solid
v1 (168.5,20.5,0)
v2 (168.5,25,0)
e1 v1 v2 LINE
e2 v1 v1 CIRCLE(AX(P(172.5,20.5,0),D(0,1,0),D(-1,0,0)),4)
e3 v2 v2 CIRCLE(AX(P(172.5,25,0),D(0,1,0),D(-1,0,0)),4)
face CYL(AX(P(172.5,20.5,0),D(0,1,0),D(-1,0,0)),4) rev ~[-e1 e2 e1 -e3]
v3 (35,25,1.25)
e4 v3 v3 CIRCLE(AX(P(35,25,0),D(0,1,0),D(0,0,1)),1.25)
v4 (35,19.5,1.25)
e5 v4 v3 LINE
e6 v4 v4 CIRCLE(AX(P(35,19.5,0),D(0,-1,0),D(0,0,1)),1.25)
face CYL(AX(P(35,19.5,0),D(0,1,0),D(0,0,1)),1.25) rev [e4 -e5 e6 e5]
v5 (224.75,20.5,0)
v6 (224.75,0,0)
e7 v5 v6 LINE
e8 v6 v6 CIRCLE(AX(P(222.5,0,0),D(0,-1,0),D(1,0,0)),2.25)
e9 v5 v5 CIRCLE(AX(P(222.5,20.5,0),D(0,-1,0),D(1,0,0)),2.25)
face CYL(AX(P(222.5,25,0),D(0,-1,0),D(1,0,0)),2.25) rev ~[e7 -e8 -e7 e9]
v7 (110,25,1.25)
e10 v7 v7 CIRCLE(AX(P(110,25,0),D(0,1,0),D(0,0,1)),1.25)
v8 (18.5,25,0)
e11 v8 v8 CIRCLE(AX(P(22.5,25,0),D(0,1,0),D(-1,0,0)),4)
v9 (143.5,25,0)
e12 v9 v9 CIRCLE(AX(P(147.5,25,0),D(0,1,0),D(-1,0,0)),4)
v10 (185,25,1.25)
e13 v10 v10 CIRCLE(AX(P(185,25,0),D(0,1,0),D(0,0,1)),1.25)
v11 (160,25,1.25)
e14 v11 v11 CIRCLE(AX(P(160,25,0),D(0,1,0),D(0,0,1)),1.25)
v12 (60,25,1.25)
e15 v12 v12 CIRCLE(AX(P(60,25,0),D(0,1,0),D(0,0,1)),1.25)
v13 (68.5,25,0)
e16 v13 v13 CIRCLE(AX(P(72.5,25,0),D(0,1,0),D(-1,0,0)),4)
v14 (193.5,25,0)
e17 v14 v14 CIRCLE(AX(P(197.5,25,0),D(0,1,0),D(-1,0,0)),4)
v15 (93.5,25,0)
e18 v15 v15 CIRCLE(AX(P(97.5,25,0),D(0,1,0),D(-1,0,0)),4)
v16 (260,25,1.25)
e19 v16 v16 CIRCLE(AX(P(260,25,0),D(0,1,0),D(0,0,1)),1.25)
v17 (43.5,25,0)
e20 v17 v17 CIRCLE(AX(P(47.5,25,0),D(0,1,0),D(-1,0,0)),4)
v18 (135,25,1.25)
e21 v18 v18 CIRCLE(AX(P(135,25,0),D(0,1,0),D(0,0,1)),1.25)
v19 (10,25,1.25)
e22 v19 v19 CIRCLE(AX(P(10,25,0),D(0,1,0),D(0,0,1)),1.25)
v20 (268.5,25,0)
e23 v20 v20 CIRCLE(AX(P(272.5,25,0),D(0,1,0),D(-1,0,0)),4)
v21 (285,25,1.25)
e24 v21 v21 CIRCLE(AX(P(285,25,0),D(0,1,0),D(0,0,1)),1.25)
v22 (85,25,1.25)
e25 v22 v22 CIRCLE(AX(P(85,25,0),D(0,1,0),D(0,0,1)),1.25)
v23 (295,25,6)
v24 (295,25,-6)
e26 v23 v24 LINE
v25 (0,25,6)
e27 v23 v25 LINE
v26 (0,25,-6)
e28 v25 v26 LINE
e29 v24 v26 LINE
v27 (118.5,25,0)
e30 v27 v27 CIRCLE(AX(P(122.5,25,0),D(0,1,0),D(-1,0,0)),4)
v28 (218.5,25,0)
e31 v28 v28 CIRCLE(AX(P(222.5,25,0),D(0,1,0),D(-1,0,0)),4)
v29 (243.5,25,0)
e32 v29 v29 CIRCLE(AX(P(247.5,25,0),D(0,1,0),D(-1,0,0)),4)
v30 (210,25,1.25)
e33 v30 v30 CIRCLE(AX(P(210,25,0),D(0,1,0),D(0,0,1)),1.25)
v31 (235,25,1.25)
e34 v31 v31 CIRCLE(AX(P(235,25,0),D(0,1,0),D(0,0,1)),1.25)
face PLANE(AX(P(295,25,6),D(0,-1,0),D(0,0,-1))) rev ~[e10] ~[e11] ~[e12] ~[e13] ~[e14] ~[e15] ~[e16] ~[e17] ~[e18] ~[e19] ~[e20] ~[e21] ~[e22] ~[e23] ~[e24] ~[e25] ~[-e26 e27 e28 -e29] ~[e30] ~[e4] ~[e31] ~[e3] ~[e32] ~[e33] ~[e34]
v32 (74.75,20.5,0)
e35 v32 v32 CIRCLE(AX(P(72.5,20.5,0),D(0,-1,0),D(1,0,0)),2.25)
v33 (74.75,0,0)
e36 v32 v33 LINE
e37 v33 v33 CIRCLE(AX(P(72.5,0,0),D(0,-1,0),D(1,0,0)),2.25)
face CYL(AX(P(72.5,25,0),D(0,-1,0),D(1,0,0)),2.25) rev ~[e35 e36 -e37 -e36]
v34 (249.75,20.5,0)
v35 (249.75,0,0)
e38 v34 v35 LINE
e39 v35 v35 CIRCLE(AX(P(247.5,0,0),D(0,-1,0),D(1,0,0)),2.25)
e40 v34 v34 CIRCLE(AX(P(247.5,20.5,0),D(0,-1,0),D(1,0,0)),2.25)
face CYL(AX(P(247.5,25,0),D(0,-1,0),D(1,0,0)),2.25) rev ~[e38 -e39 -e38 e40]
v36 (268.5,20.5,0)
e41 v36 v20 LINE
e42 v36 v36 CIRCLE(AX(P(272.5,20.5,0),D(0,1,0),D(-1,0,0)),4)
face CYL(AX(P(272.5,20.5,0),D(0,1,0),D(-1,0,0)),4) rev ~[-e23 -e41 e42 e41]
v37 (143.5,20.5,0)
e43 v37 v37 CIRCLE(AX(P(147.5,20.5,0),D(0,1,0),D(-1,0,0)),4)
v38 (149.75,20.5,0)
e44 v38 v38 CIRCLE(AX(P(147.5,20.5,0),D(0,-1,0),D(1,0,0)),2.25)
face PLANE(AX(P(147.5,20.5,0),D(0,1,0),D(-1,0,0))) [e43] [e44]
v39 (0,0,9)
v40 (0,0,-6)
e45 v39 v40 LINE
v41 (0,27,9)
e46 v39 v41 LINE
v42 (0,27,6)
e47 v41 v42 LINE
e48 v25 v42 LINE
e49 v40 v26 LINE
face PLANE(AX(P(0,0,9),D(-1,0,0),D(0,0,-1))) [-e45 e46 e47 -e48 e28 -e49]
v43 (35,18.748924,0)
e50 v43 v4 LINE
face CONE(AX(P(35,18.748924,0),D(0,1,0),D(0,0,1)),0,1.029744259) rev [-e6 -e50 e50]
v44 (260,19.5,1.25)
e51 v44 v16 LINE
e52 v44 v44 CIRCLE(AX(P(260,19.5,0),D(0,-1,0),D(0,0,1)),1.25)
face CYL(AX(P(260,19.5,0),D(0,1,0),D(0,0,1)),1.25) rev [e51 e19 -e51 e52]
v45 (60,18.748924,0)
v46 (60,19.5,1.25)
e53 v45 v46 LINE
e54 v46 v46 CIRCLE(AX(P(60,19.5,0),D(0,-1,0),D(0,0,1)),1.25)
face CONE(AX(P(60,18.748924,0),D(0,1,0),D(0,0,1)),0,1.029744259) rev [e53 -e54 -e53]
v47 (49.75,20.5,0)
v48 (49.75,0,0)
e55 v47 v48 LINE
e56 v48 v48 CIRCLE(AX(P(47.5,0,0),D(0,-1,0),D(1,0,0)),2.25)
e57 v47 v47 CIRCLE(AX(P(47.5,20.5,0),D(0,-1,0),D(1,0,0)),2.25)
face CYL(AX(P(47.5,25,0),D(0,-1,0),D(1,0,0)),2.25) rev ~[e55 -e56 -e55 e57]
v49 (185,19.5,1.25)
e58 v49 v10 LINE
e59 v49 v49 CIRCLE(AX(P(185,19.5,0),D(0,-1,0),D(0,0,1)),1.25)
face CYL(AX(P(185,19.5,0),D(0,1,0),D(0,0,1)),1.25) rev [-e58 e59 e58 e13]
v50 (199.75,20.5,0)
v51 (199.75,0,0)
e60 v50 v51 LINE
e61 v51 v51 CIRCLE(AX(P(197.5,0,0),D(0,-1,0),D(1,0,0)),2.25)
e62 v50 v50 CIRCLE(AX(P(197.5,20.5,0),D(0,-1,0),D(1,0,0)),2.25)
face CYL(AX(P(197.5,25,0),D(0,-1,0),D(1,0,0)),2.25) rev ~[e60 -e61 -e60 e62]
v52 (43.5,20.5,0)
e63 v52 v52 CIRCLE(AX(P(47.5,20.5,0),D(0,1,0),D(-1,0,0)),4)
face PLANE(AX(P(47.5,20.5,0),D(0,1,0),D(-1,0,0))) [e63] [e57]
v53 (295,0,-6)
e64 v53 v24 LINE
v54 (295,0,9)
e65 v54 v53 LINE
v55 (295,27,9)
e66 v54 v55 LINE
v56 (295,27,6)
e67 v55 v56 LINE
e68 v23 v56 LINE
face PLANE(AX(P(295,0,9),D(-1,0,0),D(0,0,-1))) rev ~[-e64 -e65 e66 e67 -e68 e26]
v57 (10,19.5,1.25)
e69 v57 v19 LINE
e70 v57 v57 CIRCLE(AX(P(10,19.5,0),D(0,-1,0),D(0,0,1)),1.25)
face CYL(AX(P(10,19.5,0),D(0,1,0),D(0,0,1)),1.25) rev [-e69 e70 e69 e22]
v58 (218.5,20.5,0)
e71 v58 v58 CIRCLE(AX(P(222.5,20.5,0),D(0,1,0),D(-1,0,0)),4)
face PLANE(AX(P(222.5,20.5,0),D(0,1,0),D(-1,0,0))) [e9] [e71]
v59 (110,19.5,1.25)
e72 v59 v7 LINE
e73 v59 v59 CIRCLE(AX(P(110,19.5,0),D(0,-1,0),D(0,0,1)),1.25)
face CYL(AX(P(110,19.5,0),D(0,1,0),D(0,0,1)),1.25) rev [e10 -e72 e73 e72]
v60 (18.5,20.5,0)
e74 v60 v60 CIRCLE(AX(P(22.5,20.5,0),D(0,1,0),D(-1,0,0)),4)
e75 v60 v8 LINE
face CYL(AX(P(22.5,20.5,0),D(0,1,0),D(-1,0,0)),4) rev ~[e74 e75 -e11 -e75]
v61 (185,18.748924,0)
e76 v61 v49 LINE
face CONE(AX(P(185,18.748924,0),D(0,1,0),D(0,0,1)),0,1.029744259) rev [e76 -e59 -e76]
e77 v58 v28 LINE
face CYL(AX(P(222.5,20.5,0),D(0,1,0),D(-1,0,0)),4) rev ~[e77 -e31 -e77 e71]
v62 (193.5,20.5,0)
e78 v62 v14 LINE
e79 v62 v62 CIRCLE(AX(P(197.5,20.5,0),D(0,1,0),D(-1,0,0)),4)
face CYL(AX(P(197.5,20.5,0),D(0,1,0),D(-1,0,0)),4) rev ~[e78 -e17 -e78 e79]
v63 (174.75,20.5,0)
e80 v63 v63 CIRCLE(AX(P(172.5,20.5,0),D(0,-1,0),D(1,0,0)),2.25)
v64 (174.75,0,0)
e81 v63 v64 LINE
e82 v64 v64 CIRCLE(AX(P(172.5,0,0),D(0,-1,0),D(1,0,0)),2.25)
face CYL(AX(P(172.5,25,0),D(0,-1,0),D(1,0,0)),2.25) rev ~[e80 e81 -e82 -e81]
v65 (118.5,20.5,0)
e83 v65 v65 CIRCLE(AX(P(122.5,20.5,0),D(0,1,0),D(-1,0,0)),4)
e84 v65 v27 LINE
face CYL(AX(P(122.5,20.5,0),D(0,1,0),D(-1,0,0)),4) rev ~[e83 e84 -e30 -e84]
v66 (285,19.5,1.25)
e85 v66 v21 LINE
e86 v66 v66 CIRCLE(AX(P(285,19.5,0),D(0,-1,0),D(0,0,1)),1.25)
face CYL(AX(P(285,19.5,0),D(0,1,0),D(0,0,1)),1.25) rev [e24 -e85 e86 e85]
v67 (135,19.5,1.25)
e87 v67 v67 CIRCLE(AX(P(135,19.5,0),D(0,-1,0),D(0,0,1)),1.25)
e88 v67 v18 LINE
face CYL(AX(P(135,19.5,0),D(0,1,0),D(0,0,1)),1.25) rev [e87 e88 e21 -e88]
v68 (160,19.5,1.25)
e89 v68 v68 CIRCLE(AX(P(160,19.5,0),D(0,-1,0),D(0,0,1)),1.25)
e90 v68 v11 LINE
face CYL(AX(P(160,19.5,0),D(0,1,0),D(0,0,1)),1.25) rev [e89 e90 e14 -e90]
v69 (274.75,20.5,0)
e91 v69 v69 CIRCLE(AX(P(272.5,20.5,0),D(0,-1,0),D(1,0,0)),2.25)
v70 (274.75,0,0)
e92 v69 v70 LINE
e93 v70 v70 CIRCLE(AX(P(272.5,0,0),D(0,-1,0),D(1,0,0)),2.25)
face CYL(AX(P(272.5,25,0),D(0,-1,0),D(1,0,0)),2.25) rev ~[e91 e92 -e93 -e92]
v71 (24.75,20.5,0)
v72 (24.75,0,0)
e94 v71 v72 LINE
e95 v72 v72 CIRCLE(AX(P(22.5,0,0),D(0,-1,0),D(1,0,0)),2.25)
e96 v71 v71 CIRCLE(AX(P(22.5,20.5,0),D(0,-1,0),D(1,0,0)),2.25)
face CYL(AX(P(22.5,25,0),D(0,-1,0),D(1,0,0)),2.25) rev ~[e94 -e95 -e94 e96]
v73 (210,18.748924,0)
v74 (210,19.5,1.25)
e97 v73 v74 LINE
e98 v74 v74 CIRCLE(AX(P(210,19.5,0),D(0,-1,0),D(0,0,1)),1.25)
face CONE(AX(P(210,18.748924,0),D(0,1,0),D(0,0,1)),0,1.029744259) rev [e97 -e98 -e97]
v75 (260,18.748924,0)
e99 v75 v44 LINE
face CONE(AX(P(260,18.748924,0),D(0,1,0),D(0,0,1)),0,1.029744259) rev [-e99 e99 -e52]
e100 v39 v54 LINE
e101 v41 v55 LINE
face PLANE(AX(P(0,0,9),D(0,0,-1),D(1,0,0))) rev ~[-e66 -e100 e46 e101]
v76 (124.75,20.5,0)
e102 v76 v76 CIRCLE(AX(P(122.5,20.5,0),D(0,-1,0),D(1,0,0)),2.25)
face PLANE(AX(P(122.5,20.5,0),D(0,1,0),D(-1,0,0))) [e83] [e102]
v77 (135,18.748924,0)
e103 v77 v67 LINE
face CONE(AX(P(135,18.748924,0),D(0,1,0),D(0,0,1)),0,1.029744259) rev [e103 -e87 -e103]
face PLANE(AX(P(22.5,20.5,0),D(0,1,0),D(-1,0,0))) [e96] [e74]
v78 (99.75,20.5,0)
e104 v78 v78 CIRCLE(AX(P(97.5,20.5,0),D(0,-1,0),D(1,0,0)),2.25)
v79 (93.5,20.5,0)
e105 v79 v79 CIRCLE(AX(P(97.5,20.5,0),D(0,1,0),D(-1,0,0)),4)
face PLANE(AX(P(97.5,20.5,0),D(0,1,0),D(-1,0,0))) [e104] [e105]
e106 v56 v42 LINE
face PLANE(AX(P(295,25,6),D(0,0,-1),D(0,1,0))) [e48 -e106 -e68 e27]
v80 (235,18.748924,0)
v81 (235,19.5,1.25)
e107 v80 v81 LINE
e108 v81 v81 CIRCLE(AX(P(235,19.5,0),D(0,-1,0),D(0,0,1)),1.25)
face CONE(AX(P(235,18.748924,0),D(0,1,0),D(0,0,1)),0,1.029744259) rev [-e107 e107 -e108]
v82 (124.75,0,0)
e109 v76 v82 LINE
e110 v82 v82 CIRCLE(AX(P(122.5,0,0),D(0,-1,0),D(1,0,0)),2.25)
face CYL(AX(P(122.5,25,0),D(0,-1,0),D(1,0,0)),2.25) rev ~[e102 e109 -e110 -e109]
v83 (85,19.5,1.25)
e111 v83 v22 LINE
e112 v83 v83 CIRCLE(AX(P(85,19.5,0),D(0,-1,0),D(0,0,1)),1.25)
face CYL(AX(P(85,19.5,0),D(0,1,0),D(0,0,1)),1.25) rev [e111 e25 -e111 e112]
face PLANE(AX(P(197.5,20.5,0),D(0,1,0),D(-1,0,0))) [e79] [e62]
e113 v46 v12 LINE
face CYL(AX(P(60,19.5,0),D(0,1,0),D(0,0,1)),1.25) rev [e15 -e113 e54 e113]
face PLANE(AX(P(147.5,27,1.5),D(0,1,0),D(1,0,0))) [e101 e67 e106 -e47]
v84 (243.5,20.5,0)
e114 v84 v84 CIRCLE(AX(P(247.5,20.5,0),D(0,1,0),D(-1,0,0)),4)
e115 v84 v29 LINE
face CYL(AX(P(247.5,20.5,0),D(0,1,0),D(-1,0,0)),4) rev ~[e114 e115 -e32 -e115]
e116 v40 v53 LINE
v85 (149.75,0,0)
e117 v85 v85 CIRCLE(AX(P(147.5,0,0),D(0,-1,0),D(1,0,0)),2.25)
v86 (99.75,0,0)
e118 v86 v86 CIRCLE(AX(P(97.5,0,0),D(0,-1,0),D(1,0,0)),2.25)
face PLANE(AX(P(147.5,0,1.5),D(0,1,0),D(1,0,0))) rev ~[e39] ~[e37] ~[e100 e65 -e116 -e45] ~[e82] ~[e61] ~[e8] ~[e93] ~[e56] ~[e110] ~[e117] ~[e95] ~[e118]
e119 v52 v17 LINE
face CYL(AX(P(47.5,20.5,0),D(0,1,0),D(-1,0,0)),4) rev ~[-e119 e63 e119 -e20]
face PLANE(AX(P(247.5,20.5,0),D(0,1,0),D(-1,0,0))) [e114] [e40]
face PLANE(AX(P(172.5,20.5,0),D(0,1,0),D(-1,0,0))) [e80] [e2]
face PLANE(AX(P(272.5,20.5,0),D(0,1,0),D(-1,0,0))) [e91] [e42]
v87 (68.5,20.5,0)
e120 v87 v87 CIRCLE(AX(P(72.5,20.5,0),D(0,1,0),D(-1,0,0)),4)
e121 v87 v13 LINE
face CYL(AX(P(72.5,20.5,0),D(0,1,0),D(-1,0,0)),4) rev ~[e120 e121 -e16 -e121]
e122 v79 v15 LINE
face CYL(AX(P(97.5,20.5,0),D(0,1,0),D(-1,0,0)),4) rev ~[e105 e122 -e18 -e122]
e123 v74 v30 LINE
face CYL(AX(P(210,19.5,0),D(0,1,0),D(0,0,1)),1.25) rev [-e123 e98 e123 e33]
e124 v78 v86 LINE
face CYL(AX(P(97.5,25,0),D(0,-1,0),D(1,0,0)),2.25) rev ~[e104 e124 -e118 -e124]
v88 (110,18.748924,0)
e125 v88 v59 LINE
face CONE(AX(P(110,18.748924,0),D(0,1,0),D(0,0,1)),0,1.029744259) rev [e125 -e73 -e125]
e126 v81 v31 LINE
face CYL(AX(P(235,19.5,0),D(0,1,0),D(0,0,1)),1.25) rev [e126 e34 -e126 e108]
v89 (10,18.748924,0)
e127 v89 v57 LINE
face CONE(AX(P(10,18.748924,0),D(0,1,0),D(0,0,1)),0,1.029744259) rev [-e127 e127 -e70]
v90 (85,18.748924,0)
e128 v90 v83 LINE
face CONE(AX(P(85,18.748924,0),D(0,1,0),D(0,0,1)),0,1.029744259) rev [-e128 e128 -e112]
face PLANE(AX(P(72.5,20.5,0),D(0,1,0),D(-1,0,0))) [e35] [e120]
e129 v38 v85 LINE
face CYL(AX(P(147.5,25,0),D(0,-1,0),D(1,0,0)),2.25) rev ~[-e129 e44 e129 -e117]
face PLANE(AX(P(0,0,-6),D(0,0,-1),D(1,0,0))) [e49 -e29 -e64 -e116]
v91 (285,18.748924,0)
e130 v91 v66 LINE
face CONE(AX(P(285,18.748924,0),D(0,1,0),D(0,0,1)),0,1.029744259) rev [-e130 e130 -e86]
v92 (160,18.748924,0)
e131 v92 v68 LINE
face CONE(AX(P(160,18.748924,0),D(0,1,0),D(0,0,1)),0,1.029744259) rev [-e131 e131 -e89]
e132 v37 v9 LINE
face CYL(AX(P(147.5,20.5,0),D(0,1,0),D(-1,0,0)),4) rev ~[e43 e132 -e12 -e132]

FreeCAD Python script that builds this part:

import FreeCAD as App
import Part
import Sketcher

V = App.Vector
Q = App.Units.Quantity

doc = App.newDocument("Part")
body = doc.addObject("PartDesign::Body", "Body")

sketch1 = body.newObject("Sketcher::SketchObject", "Sketch")
sketch1.AttachmentSupport = (doc.getObject("XZ_Plane"), [""])
sketch1.MapMode = "FlatFace"
sketch1.addGeometry([
    Part.LineSegment(V(0, -6, 0), V(0, 9, 0)),
    Part.LineSegment(V(0, 9, 0), V(295, 9, 0)),
    Part.LineSegment(V(295, 9, 0), V(295, -6, 0)),
    Part.LineSegment(V(295, -6, 0), V(0, -6, 0)),
], False)
sketch1.addConstraint([
    Sketcher.Constraint("Coincident", 0, 2, 1, 1),
    Sketcher.Constraint("Coincident", 1, 2, 2, 1),
    Sketcher.Constraint("Coincident", 2, 2, 3, 1),
    Sketcher.Constraint("Coincident", 3, 2, 0, 1),
    Sketcher.Constraint("Vertical", 0),
    Sketcher.Constraint("Horizontal", 1),
    Sketcher.Constraint("Vertical", 2),
    Sketcher.Constraint("Horizontal", 3),
    Sketcher.Constraint("PointOnObject", 0, 2, -2),
    Sketcher.Constraint("DistanceX", 1, 1, 1, 2, Q("295 mm")),
    Sketcher.Constraint("DistanceY", 0, 1, 0, 2, Q("15 mm")),
    Sketcher.Constraint("DistanceY", -1, 1, 0, 2, Q("9 mm")),
])
pad1 = body.newObject("PartDesign::Pad", "Pad")
pad1.Profile = sketch1
pad1.Length = 27
pad1.Reversed = True

sketch2 = body.newObject("Sketcher::SketchObject", "Sketch001")
sketch2.AttachmentSupport = (doc.getObject("YZ_Plane"), [""])
sketch2.MapMode = "FlatFace"
sketch2.AttachmentOffset = App.Placement(V(0, 0, 10), App.Rotation())
sketch2.addGeometry([
    Part.LineSegment(V(18.748924, 0, 0), V(27, 0, 0)),
    Part.LineSegment(V(27, 0, 0), V(27, 1.25, 0)),
    Part.LineSegment(V(27, 1.25, 0), V(19.5, 1.25, 0)),
    Part.LineSegment(V(19.5, 1.25, 0), V(18.748924, 0, 0)),
], False)
sketch2.addConstraint([
    Sketcher.Constraint("Coincident", 0, 2, 1, 1),
    Sketcher.Constraint("Coincident", 1, 2, 2, 1),
    Sketcher.Constraint("Coincident", 2, 2, 3, 1),
    Sketcher.Constraint("Coincident", 3, 2, 0, 1),
    Sketcher.Constraint("Horizontal", 0),
    Sketcher.Constraint("Vertical", 1),
    Sketcher.Constraint("Horizontal", 2),
    Sketcher.Constraint("PointOnObject", 0, 2, -1),
    Sketcher.Constraint("Angle", 3, Q("-121 deg")),
    Sketcher.Constraint("DistanceX", 2, 2, 2, 1, Q("7.5 mm")),
    Sketcher.Constraint("DistanceX", -1, 1, 0, 2, Q("27 mm")),
    Sketcher.Constraint("DistanceY", 1, 1, 1, 2, Q("1.25 mm")),
])
groove = body.newObject("PartDesign::Groove", "Groove")
groove.Profile = sketch2
groove.ReferenceAxis = (sketch2, ["H_Axis"])
groove.Angle = 360
doc.recompute()

linearpattern = body.newObject("PartDesign::LinearPattern", "LinearPattern")
linearpattern.Originals = [groove]
linearpattern.Direction = (doc.getObject("X_Axis"), [""])
linearpattern.Mode = "offset"
linearpattern.Offset = 25
linearpattern.Occurrences = 12
body.Tip = linearpattern

sketch3 = body.newObject("Sketcher::SketchObject", "Sketch002")
sketch3.AttachmentSupport = (doc.getObject("YZ_Plane"), [""])
sketch3.MapMode = "FlatFace"
sketch3.AttachmentOffset = App.Placement(V(0, 0, 295), App.Rotation())
sketch3.addGeometry([
    Part.LineSegment(V(27, 6, 0), V(25, 6, 0)),
    Part.LineSegment(V(25, 6, 0), V(25, -6, 0)),
    Part.LineSegment(V(25, -6, 0), V(27, -6, 0)),
    Part.LineSegment(V(27, -6, 0), V(27, 6, 0)),
], False)
sketch3.addConstraint([
    Sketcher.Constraint("Coincident", 0, 2, 1, 1),
    Sketcher.Constraint("Coincident", 1, 2, 2, 1),
    Sketcher.Constraint("Coincident", 2, 2, 3, 1),
    Sketcher.Constraint("Coincident", 3, 2, 0, 1),
    Sketcher.Constraint("Horizontal", 0),
    Sketcher.Constraint("Vertical", 1),
    Sketcher.Constraint("Horizontal", 2),
    Sketcher.Constraint("Vertical", 3),
    Sketcher.Constraint("DistanceX", 0, 2, 0, 1, Q("2 mm")),
    Sketcher.Constraint("DistanceY", 1, 2, 1, 1, Q("12 mm")),
    Sketcher.Constraint("DistanceX", -1, 1, 0, 2, Q("25 mm")),
    Sketcher.Constraint("DistanceY", -1, 1, 0, 2, Q("6 mm")),
])
pocket1 = body.newObject("PartDesign::Pocket", "Pocket")
pocket1.Profile = sketch3
pocket1.Type = "UpToFirst"

sketch4 = body.newObject("Sketcher::SketchObject", "Sketch003")
sketch4.AttachmentSupport = (doc.getObject("XZ_Plane"), [""])
sketch4.MapMode = "FlatFace"
sketch4.AttachmentOffset = App.Placement(V(0, 0, -25), App.Rotation())
sketch4.addGeometry(Part.Circle(V(22.5, 0, 0), V(0, 0, 1), 2.25), False)
sketch4.addConstraint([
    Sketcher.Constraint("PointOnObject", 0, 3, -1),
    Sketcher.Constraint("Diameter", 0, Q("4.5 mm")),
    Sketcher.Constraint("DistanceX", -1, 1, 0, 3, Q("22.5 mm")),
])
doc.recompute()
hole = body.newObject("PartDesign::Hole", "Hole")
hole.Profile = sketch4
hole.ThreadType = "None"
hole.Diameter = 4.5
hole.DepthType = "ThroughAll"
hole.HoleCutType = "Counterbore"
hole.HoleCutDiameter = 8
hole.HoleCutDepth = 4.5
hole.Reversed = True
doc.recompute()

linearpattern2 = body.newObject("PartDesign::LinearPattern", "LinearPattern001")
linearpattern2.Originals = [hole]
linearpattern2.Direction = (doc.getObject("X_Axis"), [""])
linearpattern2.Mode = "offset"
linearpattern2.Offset = 25
linearpattern2.Occurrences = 11
body.Tip = linearpattern2

doc.recompute()
